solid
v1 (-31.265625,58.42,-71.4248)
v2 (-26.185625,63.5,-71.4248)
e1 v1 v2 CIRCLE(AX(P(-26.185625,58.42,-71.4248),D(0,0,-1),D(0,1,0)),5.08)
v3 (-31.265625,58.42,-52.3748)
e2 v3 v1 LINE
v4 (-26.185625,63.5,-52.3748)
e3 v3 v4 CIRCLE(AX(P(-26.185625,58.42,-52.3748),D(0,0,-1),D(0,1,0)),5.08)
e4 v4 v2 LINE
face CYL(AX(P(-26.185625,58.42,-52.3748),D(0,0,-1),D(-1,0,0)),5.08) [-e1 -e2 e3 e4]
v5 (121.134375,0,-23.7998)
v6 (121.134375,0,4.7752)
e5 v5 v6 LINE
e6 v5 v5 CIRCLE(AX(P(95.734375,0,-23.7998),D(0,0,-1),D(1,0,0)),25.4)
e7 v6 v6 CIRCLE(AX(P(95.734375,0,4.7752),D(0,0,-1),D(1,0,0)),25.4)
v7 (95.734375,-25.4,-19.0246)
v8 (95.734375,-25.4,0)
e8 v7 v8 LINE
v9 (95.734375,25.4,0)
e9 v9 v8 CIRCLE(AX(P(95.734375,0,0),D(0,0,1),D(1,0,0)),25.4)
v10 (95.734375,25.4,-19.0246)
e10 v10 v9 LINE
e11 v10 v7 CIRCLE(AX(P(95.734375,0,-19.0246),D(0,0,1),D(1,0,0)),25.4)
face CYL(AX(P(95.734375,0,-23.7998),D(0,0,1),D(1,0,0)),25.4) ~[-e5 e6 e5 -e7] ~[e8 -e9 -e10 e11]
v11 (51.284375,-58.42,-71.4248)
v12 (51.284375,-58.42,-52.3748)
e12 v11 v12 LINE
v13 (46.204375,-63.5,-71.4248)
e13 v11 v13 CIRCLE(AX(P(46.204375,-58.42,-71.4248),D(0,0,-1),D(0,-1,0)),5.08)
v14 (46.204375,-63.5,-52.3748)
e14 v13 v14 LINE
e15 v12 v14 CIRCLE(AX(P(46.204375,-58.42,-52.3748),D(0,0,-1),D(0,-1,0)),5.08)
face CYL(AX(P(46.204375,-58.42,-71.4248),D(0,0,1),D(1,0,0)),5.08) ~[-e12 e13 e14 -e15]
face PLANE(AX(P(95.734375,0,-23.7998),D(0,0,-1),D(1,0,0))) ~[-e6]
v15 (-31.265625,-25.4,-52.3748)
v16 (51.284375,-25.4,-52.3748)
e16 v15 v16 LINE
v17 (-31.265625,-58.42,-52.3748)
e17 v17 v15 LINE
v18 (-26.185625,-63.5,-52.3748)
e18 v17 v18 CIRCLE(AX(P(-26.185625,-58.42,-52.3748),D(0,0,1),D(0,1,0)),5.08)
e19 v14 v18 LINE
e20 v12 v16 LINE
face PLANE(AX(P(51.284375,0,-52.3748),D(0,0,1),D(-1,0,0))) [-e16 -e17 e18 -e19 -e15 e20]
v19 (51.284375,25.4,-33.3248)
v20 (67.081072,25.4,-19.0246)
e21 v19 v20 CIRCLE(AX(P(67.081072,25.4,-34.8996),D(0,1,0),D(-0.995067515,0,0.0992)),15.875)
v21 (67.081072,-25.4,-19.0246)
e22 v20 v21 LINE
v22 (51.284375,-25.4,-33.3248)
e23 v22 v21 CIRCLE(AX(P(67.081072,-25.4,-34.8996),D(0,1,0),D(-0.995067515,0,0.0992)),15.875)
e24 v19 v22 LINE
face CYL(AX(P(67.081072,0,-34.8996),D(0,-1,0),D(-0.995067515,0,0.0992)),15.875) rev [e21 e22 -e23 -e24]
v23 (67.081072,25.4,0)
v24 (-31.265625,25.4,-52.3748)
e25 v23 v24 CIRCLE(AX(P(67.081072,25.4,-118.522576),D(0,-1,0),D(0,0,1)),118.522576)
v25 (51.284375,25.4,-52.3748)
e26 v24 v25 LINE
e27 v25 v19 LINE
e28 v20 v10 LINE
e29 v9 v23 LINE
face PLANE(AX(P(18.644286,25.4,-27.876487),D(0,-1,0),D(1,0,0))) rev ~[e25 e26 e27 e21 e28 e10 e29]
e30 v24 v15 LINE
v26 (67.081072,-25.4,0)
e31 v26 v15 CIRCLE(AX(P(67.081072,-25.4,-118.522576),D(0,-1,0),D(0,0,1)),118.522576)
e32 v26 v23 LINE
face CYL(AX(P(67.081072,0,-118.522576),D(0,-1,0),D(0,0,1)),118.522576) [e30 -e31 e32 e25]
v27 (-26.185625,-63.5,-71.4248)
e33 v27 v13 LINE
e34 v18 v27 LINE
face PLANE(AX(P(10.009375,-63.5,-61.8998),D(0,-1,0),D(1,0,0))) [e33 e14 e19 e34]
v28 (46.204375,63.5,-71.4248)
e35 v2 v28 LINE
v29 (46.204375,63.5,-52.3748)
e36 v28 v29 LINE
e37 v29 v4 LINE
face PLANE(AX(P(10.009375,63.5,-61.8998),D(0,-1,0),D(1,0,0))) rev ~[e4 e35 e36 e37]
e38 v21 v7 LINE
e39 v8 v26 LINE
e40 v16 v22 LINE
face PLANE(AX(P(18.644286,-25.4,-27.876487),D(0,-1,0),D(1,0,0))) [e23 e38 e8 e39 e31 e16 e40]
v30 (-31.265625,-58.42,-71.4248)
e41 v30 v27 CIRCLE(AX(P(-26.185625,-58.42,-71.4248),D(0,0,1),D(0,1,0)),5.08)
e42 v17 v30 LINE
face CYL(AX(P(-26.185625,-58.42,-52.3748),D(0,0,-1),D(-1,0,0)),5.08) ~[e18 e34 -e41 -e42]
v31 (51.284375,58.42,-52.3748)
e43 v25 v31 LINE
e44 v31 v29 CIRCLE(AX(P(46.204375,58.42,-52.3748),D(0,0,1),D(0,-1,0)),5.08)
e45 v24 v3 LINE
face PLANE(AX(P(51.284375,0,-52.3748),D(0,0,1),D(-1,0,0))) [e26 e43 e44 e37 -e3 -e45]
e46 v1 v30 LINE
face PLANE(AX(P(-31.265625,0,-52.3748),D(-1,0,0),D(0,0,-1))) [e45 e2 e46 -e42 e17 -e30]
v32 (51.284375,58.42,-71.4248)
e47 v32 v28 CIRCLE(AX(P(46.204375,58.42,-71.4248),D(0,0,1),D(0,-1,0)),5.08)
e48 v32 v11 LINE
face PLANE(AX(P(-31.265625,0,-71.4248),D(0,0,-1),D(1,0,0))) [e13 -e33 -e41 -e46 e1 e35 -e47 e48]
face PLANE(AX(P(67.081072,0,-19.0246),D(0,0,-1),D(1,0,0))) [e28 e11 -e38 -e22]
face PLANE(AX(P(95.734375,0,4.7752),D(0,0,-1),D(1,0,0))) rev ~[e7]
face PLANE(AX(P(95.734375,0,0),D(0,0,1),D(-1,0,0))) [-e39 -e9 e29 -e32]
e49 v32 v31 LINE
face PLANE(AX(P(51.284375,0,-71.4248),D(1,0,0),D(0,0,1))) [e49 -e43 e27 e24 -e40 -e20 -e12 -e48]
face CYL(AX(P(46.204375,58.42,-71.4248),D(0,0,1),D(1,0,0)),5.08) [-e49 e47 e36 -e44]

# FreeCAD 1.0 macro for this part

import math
import FreeCAD as App
import Part
import Sketcher
Q = App.Units.Quantity


def edges_at(feature, points):
    """Names of the edges that pass closest to the given points."""
    edges = feature.Shape.Edges
    near = lambda p: min(range(len(edges)), key=lambda i: edges[i].distToShape(Part.Vertex(*p))[0])
    return sorted({f"Edge{near(p) + 1}" for p in points})

doc = App.newDocument("Part")
params = doc.addObject("Spreadsheet::Sheet", "Params")
for row, (alias, value) in enumerate([
    ("sketch1_width", "3.25 in"),
    ("sketch1_height", "0.75 in"),
    ("pad1_length", "5 in"),
    ("sketch2_radius", "0.625 in"),
    ("sketch2_width", "3.25 in"),
    ("sketch2_height", "0.75 in"),
    ("sketch2_height2", "0.749 in"),
    ("pad2_length", "2 in"),
    ("sketch3_width", "1 in"),
    ("sketch3_height", "1.125 in"),
    ("revolution_angle", "360 deg"),
    ("fillet_radius", "0.2 in"),
], start=1):
    params.set(f"A{row}", alias)
    params.set(f"B{row}", "=" + value)
    params.setAlias(f"B{row}", alias)

body = doc.addObject("PartDesign::Body", "Body")

# Sketch on XZ plane
sketch1 = body.newObject("Sketcher::SketchObject", "Sketch")
sketch1.AttachmentSupport = (doc.getObject("XZ_Plane"), [""])
sketch1.MapMode = "FlatFace"
sketch1.addGeometry(Part.LineSegment(App.Vector(-31.265625, -52.3748, 0), App.Vector(-31.265625, -71.4248, 0)), False)
sketch1.addGeometry(Part.LineSegment(App.Vector(-31.265625, -71.4248, 0), App.Vector(51.284375, -71.4248, 0)), False)
sketch1.addGeometry(Part.LineSegment(App.Vector(51.284375, -71.4248, 0), App.Vector(51.284375, -52.3748, 0)), False)
sketch1.addGeometry(Part.LineSegment(App.Vector(51.284375, -52.3748, 0), App.Vector(-31.265625, -52.3748, 0)), False)
sketch1.addConstraint(Sketcher.Constraint("Coincident", 0, 2, 1, 1))
sketch1.addConstraint(Sketcher.Constraint("Coincident", 1, 2, 2, 1))
sketch1.addConstraint(Sketcher.Constraint("Coincident", 2, 2, 3, 1))
sketch1.addConstraint(Sketcher.Constraint("Coincident", 3, 2, 0, 1))
sketch1.addConstraint(Sketcher.Constraint("Vertical", 0))
sketch1.addConstraint(Sketcher.Constraint("Horizontal", 1))
sketch1.addConstraint(Sketcher.Constraint("Vertical", 2))
sketch1.addConstraint(Sketcher.Constraint("Horizontal", 3))
sketch1.addConstraint(Sketcher.Constraint("DistanceX", 1, 1, 1, 2, Q("3.25 in")))
sketch1.addConstraint(Sketcher.Constraint("DistanceY", 0, 2, 0, 1, Q("0.75 in")))
sketch1.addConstraint(Sketcher.Constraint("DistanceY", 0, 2, -1, 1, Q("2.812 in")))
sketch1.addConstraint(Sketcher.Constraint("DistanceX", 0, 2, -1, 1, Q("31.265625 mm")))
sketch1.setExpression("Constraints[8]", "Params.sketch1_width")
sketch1.setExpression("Constraints[9]", "Params.sketch1_height")
pad1 = body.newObject("PartDesign::Pad", "Pad")
pad1.Profile = sketch1
pad1.setExpression("Length", "Params.pad1_length")
pad1.Midplane = True

# Sketch on XZ plane
sketch2 = body.newObject("Sketcher::SketchObject", "Sketch001")
sketch2.AttachmentSupport = (doc.getObject("XZ_Plane"), [""])
sketch2.MapMode = "FlatFace"
sketch2.addGeometry(Part.ArcOfCircle(Part.Circle(App.Vector(67.081072, -118.522576, 0), App.Vector(0, 0, 1), 118.522576), math.radians(90), math.radians(146.075308)), False)
sketch2.addGeometry(Part.LineSegment(App.Vector(-31.265625, -52.3748, 0), App.Vector(51.284375, -52.3748, 0)), False)
sketch2.addGeometry(Part.LineSegment(App.Vector(51.284375, -52.3748, 0), App.Vector(51.284375, -33.3248, 0)), False)
sketch2.addGeometry(Part.ArcOfCircle(Part.Circle(App.Vector(67.081072, -34.8996, 0), App.Vector(0, 0, 1), 15.875), math.radians(90), math.radians(174.306895)), False)
sketch2.addGeometry(Part.LineSegment(App.Vector(67.081072, -19.0246, 0), App.Vector(95.734375, -19.0246, 0)), False)
sketch2.addGeometry(Part.LineSegment(App.Vector(95.734375, -19.0246, 0), App.Vector(95.734375, 0, 0)), False)
sketch2.addGeometry(Part.LineSegment(App.Vector(95.734375, 0, 0), App.Vector(67.081072, 0, 0)), False)
sketch2.addConstraint(Sketcher.Constraint("Coincident", 0, 2, 1, 1))
sketch2.addConstraint(Sketcher.Constraint("Coincident", 1, 2, 2, 1))
sketch2.addConstraint(Sketcher.Constraint("Coincident", 2, 2, 3, 2))
sketch2.addConstraint(Sketcher.Constraint("Tangent", 3, 1, 4, 1))
sketch2.addConstraint(Sketcher.Constraint("Coincident", 4, 2, 5, 1))
sketch2.addConstraint(Sketcher.Constraint("Coincident", 5, 2, 6, 1))
sketch2.addConstraint(Sketcher.Constraint("Tangent", 6, 2, 0, 1))
sketch2.addConstraint(Sketcher.Constraint("Horizontal", 1))
sketch2.addConstraint(Sketcher.Constraint("Vertical", 2))
sketch2.addConstraint(Sketcher.Constraint("Horizontal", 4))
sketch2.addConstraint(Sketcher.Constraint("Vertical", 5))
sketch2.addConstraint(Sketcher.Constraint("Horizontal", 6))
sketch2.addConstraint(Sketcher.Constraint("PointOnObject", 5, 2, -1))
sketch2.addConstraint(Sketcher.Constraint("Vertical", 0, 3, 3, 3))
sketch2.addConstraint(Sketcher.Constraint("Radius", 3, Q("0.625 in")))
sketch2.addConstraint(Sketcher.Constraint("DistanceX", 1, 1, 1, 2, Q("3.25 in")))
sketch2.addConstraint(Sketcher.Constraint("DistanceY", 2, 1, 2, 2, Q("0.75 in")))
sketch2.addConstraint(Sketcher.Constraint("DistanceY", 5, 1, 5, 2, Q("0.749 in")))
sketch2.addConstraint(Sketcher.Constraint("DistanceX", 2, 2, 4, 2, Q("1.75 in")))
sketch2.addConstraint(Sketcher.Constraint("DistanceY", 0, 2, -1, 1, Q("2.062 in")))
sketch2.addConstraint(Sketcher.Constraint("DistanceX", -1, 1, 0, 3, Q("67.081072 mm")))
sketch2.setExpression("Constraints[14]", "Params.sketch2_radius")
sketch2.setExpression("Constraints[15]", "Params.sketch2_width")
sketch2.setExpression("Constraints[16]", "Params.sketch2_height")
sketch2.setExpression("Constraints[17]", "Params.sketch2_height2")
pad2 = body.newObject("PartDesign::Pad", "Pad001")
pad2.Profile = sketch2
pad2.setExpression("Length", "Params.pad2_length")
pad2.Midplane = True

# Sketch on XZ plane
sketch3 = body.newObject("Sketcher::SketchObject", "Sketch002")
sketch3.AttachmentSupport = (doc.getObject("XZ_Plane"), [""])
sketch3.MapMode = "FlatFace"
sketch3.addGeometry(Part.LineSegment(App.Vector(95.734375, 4.7752, 0), App.Vector(95.734375, -23.7998, 0)), False)
sketch3.addGeometry(Part.LineSegment(App.Vector(95.734375, -23.7998, 0), App.Vector(121.134375, -23.7998, 0)), False)
sketch3.addGeometry(Part.LineSegment(App.Vector(121.134375, -23.7998, 0), App.Vector(121.134375, 4.7752, 0)), False)
sketch3.addGeometry(Part.LineSegment(App.Vector(121.134375, 4.7752, 0), App.Vector(95.734375, 4.7752, 0)), False)
sketch3.addGeometry(Part.LineSegment(App.Vector(95.734375, 4.7752, 0), App.Vector(95.734375, -23.7998, 0)), True)  # axis
sketch3.addConstraint(Sketcher.Constraint("Coincident", 0, 2, 1, 1))
sketch3.addConstraint(Sketcher.Constraint("Coincident", 1, 2, 2, 1))
sketch3.addConstraint(Sketcher.Constraint("Coincident", 2, 2, 3, 1))
sketch3.addConstraint(Sketcher.Constraint("Coincident", 3, 2, 0, 1))
sketch3.addConstraint(Sketcher.Constraint("Vertical", 0))
sketch3.addConstraint(Sketcher.Constraint("Horizontal", 1))
sketch3.addConstraint(Sketcher.Constraint("Vertical", 2))
sketch3.addConstraint(Sketcher.Constraint("Horizontal", 3))
sketch3.addConstraint(Sketcher.Constraint("Vertical", 4))
sketch3.addConstraint(Sketcher.Constraint("Coincident", 4, 1, 3, 2))
sketch3.addConstraint(Sketcher.Constraint("Horizontal", 1, 2, 4, 2))
sketch3.addConstraint(Sketcher.Constraint("DistanceX", 1, 1, 1, 2, Q("1 in")))
sketch3.addConstraint(Sketcher.Constraint("DistanceY", 0, 2, 0, 1, Q("1.125 in")))
sketch3.addConstraint(Sketcher.Constraint("DistanceY", 0, 2, -1, 1, Q("0.937 in")))
sketch3.addConstraint(Sketcher.Constraint("DistanceX", -1, 1, 0, 2, Q("95.734375 mm")))
sketch3.setExpression("Constraints[11]", "Params.sketch3_width")
sketch3.setExpression("Constraints[12]", "Params.sketch3_height")
revolution = body.newObject("PartDesign::Revolution", "Revolution")
revolution.Profile = sketch3
revolution.ReferenceAxis = (sketch3, ["Axis0"])
revolution.setExpression("Angle", "Params.revolution_angle")
doc.recompute()

fillet = body.newObject("PartDesign::Fillet", "Fillet")
fillet.Base = (revolution, edges_at(revolution, [
    (-31.266, -63.5, -61.9),
    (51.284, -63.5, -61.9),
    (51.284, 63.5, -61.9),
    (-31.266, 63.5, -61.9),
]))
fillet.setExpression("Radius", "Params.fillet_radius")

doc.recompute()
